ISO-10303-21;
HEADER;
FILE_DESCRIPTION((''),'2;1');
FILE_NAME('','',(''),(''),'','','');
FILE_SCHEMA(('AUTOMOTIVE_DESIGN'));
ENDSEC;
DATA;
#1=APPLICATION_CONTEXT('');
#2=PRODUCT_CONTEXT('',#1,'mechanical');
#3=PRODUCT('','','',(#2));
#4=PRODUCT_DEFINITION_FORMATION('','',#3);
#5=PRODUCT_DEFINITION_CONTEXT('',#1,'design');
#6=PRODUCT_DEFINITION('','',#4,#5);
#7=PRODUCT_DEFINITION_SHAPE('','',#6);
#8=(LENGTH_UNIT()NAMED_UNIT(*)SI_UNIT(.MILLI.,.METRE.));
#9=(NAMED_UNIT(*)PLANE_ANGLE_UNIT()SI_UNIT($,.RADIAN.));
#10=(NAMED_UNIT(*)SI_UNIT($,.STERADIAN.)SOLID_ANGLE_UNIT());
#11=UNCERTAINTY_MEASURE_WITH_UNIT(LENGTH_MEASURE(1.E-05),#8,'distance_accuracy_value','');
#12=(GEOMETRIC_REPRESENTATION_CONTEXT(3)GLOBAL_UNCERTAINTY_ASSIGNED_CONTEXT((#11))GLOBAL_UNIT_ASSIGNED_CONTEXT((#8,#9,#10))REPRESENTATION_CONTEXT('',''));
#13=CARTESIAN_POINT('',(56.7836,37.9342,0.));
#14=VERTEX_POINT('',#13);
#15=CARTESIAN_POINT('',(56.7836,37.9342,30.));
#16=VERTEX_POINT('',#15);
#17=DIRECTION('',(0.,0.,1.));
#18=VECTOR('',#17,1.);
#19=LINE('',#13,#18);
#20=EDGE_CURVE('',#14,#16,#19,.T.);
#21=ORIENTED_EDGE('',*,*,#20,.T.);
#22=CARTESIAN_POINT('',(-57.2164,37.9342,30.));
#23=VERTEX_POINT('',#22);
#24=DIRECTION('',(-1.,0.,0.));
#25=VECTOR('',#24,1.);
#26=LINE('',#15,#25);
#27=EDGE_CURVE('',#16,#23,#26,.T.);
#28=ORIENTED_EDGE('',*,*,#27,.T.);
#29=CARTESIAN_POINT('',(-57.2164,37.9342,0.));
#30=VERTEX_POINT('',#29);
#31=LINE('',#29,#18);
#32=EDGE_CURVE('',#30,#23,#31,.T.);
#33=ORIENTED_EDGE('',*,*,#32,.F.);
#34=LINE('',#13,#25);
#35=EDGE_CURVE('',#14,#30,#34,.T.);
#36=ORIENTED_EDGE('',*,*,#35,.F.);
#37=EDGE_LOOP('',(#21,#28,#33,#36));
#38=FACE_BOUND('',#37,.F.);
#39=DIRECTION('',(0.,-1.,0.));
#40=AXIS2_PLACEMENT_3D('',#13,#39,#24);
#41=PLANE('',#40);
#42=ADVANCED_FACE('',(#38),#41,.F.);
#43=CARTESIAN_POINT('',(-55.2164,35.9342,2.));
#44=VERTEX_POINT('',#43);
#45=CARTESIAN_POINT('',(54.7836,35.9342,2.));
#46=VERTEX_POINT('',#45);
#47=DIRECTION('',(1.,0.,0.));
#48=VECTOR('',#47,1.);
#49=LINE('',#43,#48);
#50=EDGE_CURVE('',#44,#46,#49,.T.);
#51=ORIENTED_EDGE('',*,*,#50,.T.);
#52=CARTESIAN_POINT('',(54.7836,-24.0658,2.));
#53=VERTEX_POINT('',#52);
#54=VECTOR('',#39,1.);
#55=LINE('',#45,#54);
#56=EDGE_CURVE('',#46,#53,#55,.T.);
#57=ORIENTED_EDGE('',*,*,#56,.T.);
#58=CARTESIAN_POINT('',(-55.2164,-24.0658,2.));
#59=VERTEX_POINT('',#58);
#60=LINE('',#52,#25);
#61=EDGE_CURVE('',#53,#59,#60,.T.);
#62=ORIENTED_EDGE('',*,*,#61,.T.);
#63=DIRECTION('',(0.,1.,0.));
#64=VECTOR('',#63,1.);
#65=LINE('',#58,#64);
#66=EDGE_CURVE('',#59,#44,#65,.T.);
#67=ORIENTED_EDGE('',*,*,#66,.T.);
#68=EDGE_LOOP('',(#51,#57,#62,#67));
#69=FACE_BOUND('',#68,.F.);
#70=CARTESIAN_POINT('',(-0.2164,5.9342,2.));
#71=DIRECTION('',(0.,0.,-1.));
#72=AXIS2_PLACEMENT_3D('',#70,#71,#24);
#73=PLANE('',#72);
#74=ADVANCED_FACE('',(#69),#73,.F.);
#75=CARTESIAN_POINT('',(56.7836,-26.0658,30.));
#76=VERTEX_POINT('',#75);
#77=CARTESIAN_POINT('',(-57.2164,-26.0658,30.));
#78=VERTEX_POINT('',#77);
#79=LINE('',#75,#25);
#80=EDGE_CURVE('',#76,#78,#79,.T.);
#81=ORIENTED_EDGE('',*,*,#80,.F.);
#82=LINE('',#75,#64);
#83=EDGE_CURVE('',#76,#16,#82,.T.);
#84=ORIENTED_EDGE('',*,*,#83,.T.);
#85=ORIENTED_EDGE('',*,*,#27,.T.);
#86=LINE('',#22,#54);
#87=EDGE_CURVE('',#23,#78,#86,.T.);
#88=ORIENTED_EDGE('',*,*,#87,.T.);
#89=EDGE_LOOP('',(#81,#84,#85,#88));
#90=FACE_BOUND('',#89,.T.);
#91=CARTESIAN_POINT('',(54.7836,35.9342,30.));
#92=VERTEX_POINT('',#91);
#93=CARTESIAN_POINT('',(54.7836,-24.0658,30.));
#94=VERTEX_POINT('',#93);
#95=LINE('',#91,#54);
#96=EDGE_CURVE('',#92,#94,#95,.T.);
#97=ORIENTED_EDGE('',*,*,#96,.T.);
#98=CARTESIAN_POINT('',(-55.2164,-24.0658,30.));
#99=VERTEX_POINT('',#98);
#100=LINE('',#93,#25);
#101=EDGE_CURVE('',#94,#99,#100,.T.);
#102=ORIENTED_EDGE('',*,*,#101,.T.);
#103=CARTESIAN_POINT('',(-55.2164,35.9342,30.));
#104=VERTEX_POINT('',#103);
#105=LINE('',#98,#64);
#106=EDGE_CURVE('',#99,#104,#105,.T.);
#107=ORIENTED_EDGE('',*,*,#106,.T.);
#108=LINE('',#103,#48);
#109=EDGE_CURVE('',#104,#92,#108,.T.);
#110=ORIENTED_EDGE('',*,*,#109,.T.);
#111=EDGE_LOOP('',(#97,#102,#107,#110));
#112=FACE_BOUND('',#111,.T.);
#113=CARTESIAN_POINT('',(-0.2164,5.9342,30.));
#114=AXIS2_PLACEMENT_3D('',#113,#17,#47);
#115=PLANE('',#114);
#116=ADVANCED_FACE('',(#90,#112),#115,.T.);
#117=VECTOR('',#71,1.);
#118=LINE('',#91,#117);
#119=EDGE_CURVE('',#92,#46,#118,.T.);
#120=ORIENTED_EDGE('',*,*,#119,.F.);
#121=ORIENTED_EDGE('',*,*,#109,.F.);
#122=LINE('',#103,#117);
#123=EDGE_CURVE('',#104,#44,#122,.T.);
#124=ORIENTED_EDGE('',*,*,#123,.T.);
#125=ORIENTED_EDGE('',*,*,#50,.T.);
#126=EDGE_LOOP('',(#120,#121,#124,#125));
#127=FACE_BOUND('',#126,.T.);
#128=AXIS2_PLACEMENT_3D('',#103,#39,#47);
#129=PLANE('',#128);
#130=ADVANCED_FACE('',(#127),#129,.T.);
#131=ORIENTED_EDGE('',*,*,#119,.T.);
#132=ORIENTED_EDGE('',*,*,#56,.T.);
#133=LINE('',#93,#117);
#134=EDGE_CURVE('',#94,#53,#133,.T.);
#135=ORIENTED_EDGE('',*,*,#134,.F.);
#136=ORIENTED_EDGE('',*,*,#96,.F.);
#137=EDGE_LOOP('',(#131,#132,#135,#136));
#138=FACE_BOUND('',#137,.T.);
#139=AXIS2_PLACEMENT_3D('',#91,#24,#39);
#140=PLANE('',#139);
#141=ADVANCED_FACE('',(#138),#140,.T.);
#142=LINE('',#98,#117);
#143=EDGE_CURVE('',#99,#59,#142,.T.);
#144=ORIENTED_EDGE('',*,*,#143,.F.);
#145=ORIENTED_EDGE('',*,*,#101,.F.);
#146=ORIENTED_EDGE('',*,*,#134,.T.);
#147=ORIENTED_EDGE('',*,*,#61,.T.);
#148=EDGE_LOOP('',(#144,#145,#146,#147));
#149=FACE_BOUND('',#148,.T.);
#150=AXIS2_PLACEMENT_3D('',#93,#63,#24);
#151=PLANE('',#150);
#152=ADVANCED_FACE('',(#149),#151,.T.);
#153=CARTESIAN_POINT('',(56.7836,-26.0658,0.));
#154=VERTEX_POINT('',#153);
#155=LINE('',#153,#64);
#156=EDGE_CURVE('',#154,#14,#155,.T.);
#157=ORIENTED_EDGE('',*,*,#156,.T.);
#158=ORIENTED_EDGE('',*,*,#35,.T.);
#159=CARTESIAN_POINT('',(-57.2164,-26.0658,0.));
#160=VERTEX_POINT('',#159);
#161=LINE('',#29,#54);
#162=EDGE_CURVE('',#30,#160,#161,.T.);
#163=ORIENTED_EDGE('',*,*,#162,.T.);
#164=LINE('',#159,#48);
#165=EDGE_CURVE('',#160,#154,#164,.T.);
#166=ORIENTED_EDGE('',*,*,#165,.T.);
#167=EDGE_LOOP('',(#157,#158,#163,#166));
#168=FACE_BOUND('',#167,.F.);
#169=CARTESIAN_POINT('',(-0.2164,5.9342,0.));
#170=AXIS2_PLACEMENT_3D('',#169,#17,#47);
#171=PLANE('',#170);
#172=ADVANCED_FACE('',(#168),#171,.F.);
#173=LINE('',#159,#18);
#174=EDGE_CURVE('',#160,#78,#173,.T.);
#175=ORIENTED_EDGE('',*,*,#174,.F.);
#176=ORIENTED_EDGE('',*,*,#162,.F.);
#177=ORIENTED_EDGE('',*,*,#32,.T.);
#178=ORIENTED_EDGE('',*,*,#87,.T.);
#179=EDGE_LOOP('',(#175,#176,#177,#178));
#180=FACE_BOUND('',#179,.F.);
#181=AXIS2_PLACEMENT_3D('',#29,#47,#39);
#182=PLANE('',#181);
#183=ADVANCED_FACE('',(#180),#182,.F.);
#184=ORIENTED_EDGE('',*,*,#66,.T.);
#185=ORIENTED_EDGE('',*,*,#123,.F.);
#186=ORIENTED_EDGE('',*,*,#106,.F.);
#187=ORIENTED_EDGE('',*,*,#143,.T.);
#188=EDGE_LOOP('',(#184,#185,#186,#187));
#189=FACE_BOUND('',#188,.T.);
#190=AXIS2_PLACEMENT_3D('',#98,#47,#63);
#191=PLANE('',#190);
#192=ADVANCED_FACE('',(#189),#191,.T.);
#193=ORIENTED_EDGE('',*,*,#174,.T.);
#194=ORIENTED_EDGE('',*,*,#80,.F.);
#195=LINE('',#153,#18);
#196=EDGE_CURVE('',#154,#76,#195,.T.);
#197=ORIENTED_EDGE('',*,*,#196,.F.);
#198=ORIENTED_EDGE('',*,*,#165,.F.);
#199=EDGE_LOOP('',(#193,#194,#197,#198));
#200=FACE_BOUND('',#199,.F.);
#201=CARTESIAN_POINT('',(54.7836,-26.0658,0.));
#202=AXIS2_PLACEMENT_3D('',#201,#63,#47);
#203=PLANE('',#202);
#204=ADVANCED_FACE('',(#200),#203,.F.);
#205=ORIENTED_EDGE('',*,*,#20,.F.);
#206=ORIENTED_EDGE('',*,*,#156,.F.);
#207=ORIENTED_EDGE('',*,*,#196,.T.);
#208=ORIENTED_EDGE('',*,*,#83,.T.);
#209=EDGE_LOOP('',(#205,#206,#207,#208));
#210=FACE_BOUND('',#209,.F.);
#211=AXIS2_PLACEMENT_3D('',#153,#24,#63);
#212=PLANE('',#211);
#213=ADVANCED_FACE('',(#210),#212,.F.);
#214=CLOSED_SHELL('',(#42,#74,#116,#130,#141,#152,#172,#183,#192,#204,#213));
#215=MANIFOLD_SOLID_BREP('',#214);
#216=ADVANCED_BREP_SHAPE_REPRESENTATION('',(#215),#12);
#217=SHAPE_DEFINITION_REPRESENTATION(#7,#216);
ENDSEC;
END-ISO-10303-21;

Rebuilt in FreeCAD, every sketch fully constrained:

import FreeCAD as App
import Part
import Sketcher

doc = App.newDocument("Part")
body = doc.addObject("PartDesign::Body", "Body")

sketch1 = body.newObject("Sketcher::SketchObject", "Sketch")
sketch1.AttachmentSupport = (doc.getObject("XY_Plane"), [""])
sketch1.MapMode = "FlatFace"
sketch1.addGeometry(Part.LineSegment(App.Vector(-55, 36, 0), App.Vector(-55, -24, 0)), False)
sketch1.addGeometry(Part.LineSegment(App.Vector(-55, -24, 0), App.Vector(55, -24, 0)), False)
sketch1.addGeometry(Part.LineSegment(App.Vector(55, -24, 0), App.Vector(55, 36, 0)), False)
sketch1.addGeometry(Part.LineSegment(App.Vector(55, 36, 0), App.Vector(-55, 36, 0)), False)
sketch1.addConstraint(Sketcher.Constraint("Coincident", 0, 2, 1, 1))
sketch1.addConstraint(Sketcher.Constraint("Coincident", 1, 2, 2, 1))
sketch1.addConstraint(Sketcher.Constraint("Coincident", 2, 2, 3, 1))
sketch1.addConstraint(Sketcher.Constraint("Coincident", 3, 2, 0, 1))
sketch1.addConstraint(Sketcher.Constraint("Vertical", 0))
sketch1.addConstraint(Sketcher.Constraint("Horizontal", 1))
sketch1.addConstraint(Sketcher.Constraint("Vertical", 2))
sketch1.addConstraint(Sketcher.Constraint("Horizontal", 3))
sketch1.addConstraint(Sketcher.Constraint("DistanceX", 1, 1, 1, 2, 110.0))
sketch1.addConstraint(Sketcher.Constraint("DistanceY", 0, 2, 0, 1, 60.0))
sketch1.addConstraint(Sketcher.Constraint("DistanceX", 0, 2, -1, 1, 55.2164))
sketch1.addConstraint(Sketcher.Constraint("DistanceY", 0, 2, -1, 1, 24.0658))
pad1 = body.newObject("PartDesign::Pad", "Pad")
pad1.Profile = sketch1
pad1.Length = 30

sketch2 = body.newObject("Sketcher::SketchObject", "Sketch001")
sketch2.AttachmentSupport = (doc.getObject("XY_Plane"), [""])
sketch2.MapMode = "FlatFace"
sketch2.addGeometry(Part.LineSegment(App.Vector(-57, -26, 0), App.Vector(57, -26, 0)), False)
sketch2.addGeometry(Part.LineSegment(App.Vector(57, -26, 0), App.Vector(57, 38, 0)), False)
sketch2.addGeometry(Part.LineSegment(App.Vector(57, 38, 0), App.Vector(-57, 38, 0)), False)
sketch2.addGeometry(Part.LineSegment(App.Vector(-57, 38, 0), App.Vector(-57, -26, 0)), False)
sketch2.addConstraint(Sketcher.Constraint("Coincident", 0, 2, 1, 1))
sketch2.addConstraint(Sketcher.Constraint("Coincident", 1, 2, 2, 1))
sketch2.addConstraint(Sketcher.Constraint("Coincident", 2, 2, 3, 1))
sketch2.addConstraint(Sketcher.Constraint("Coincident", 3, 2, 0, 1))
sketch2.addConstraint(Sketcher.Constraint("Horizontal", 0))
sketch2.addConstraint(Sketcher.Constraint("Vertical", 1))
sketch2.addConstraint(Sketcher.Constraint("Horizontal", 2))
sketch2.addConstraint(Sketcher.Constraint("Vertical", 3))
sketch2.addConstraint(Sketcher.Constraint("DistanceX", 0, 1, 0, 2, 114.0))
sketch2.addConstraint(Sketcher.Constraint("DistanceY", 1, 1, 1, 2, 64.0))
sketch2.addConstraint(Sketcher.Constraint("DistanceX", -1, 1, 0, 2, 56.7836))
sketch2.addConstraint(Sketcher.Constraint("DistanceY", 0, 2, -1, 1, 26.0658))
pad2 = body.newObject("PartDesign::Pad", "Pad001")
pad2.Profile = sketch2
pad2.Length = 30

sketch3 = body.newObject("Sketcher::SketchObject", "Sketch002")
sketch3.AttachmentSupport = (doc.getObject("XY_Plane"), [""])
sketch3.MapMode = "FlatFace"
sketch3.AttachmentOffset = App.Placement(App.Vector(0, 0, 30), App.Rotation())
sketch3.addGeometry(Part.LineSegment(App.Vector(55, 36, 0), App.Vector(-55, 36, 0)), False)
sketch3.addGeometry(Part.LineSegment(App.Vector(-55, 36, 0), App.Vector(-55, -24, 0)), False)
sketch3.addGeometry(Part.LineSegment(App.Vector(-55, -24, 0), App.Vector(55, -24, 0)), False)
sketch3.addGeometry(Part.LineSegment(App.Vector(55, -24, 0), App.Vector(55, 36, 0)), False)
sketch3.addConstraint(Sketcher.Constraint("Coincident", 0, 2, 1, 1))
sketch3.addConstraint(Sketcher.Constraint("Coincident", 1, 2, 2, 1))
sketch3.addConstraint(Sketcher.Constraint("Coincident", 2, 2, 3, 1))
sketch3.addConstraint(Sketcher.Constraint("Coincident", 3, 2, 0, 1))
sketch3.addConstraint(Sketcher.Constraint("Horizontal", 0))
sketch3.addConstraint(Sketcher.Constraint("Vertical", 1))
sketch3.addConstraint(Sketcher.Constraint("Horizontal", 2))
sketch3.addConstraint(Sketcher.Constraint("Vertical", 3))
sketch3.addConstraint(Sketcher.Constraint("DistanceX", 0, 2, 0, 1, 110.0))
sketch3.addConstraint(Sketcher.Constraint("DistanceY", 1, 2, 1, 1, 60.0))
sketch3.addConstraint(Sketcher.Constraint("DistanceX", 0, 2, -1, 1, 55.2164))
sketch3.addConstraint(Sketcher.Constraint("DistanceY", -1, 1, 0, 2, 35.9342))
pocket1 = body.newObject("PartDesign::Pocket", "Pocket")
pocket1.Profile = sketch3
pocket1.Length = 28

doc.recompute()
